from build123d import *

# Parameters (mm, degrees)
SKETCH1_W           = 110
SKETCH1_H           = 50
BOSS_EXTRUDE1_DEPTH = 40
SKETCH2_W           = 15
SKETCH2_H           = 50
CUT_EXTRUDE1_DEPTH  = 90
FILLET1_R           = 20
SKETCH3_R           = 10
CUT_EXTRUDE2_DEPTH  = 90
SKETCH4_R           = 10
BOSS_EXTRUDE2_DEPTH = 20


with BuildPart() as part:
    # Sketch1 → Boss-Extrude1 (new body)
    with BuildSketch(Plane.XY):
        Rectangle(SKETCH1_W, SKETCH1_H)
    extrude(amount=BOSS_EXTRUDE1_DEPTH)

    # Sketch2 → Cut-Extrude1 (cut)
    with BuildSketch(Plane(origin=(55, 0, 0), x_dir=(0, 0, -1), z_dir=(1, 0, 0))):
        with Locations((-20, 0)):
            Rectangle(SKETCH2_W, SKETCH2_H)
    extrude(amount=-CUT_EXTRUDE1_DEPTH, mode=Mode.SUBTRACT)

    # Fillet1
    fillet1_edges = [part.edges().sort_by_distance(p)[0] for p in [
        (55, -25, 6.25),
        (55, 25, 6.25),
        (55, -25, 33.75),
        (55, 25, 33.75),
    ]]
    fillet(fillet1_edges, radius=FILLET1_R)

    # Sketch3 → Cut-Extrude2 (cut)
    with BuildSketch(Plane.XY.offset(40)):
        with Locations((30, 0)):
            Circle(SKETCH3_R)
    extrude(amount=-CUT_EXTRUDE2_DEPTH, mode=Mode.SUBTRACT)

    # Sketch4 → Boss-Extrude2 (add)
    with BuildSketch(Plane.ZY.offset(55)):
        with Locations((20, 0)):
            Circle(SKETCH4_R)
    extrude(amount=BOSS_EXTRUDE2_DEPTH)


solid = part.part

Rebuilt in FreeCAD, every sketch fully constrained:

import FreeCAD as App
import Part
import Sketcher

V = App.Vector


def edges_at(feature, points):
    """Names of the edges that pass closest to the given points."""
    edges = feature.Shape.Edges
    near = lambda p: min(range(len(edges)), key=lambda i: edges[i].distToShape(Part.Vertex(*p))[0])
    return sorted({f"Edge{near(p) + 1}" for p in points})

doc = App.newDocument("Part")
params = doc.addObject("Spreadsheet::Sheet", "Params")
for row, (alias, value) in enumerate([
    ("sketch1_width", "110 mm"),
    ("sketch1_height", "50 mm"),
    ("pad1_length", "40 mm"),
    ("sketch2_width", "50 mm"),
    ("sketch2_height", "15 mm"),
    ("pocket1_length", "90 mm"),
    ("fillet_radius", "20 mm"),
    ("sketch3_diameter", "20 mm"),
    ("pocket2_length", "90 mm"),
    ("sketch4_diameter", "20 mm"),
    ("pad2_length", "20 mm"),
], start=1):
    params.set(f"A{row}", alias)
    params.set(f"B{row}", "=" + value)
    params.setAlias(f"B{row}", alias)

body = doc.addObject("PartDesign::Body", "Body")

# Sketch on XY plane
sketch1 = body.newObject("Sketcher::SketchObject", "Sketch")
sketch1.AttachmentSupport = (doc.getObject("XY_Plane"), [""])
sketch1.MapMode = "FlatFace"
sketch1.addGeometry(Part.LineSegment(V(-55, 25, 0), V(-55, -25, 0)), False)
sketch1.addGeometry(Part.LineSegment(V(-55, -25, 0), V(55, -25, 0)), False)
sketch1.addGeometry(Part.LineSegment(V(55, -25, 0), V(55, 25, 0)), False)
sketch1.addGeometry(Part.LineSegment(V(55, 25, 0), V(-55, 25, 0)), False)
sketch1.addConstraint(Sketcher.Constraint("Coincident", 0, 2, 1, 1))
sketch1.addConstraint(Sketcher.Constraint("Coincident", 1, 2, 2, 1))
sketch1.addConstraint(Sketcher.Constraint("Coincident", 2, 2, 3, 1))
sketch1.addConstraint(Sketcher.Constraint("Coincident", 3, 2, 0, 1))
sketch1.addConstraint(Sketcher.Constraint("Vertical", 0))
sketch1.addConstraint(Sketcher.Constraint("Horizontal", 1))
sketch1.addConstraint(Sketcher.Constraint("Vertical", 2))
sketch1.addConstraint(Sketcher.Constraint("Horizontal", 3))
sketch1.addConstraint(Sketcher.Constraint("Symmetric", 0, 2, 2, 2, -1, 1))
sketch1.addConstraint(Sketcher.Constraint("DistanceX", 1, 1, 1, 2, 110.0))
sketch1.addConstraint(Sketcher.Constraint("DistanceY", 0, 2, 0, 1, 50.0))
sketch1.setExpression("Constraints[9]", "Params.sketch1_width")
sketch1.setExpression("Constraints[10]", "Params.sketch1_height")
pad1 = body.newObject("PartDesign::Pad", "Pad")
pad1.Profile = sketch1
pad1.setExpression("Length", "Params.pad1_length")

# Sketch on YZ plane
sketch2 = body.newObject("Sketcher::SketchObject", "Sketch001")
sketch2.AttachmentSupport = (doc.getObject("YZ_Plane"), [""])
sketch2.MapMode = "FlatFace"
sketch2.AttachmentOffset = App.Placement(V(0, 0, 55), App.Rotation())
sketch2.addGeometry(Part.LineSegment(V(25, 27.5, 0), V(-25, 27.5, 0)), False)
sketch2.addGeometry(Part.LineSegment(V(-25, 27.5, 0), V(-25, 12.5, 0)), False)
sketch2.addGeometry(Part.LineSegment(V(-25, 12.5, 0), V(25, 12.5, 0)), False)
sketch2.addGeometry(Part.LineSegment(V(25, 12.5, 0), V(25, 27.5, 0)), False)
sketch2.addConstraint(Sketcher.Constraint("Coincident", 0, 2, 1, 1))
sketch2.addConstraint(Sketcher.Constraint("Coincident", 1, 2, 2, 1))
sketch2.addConstraint(Sketcher.Constraint("Coincident", 2, 2, 3, 1))
sketch2.addConstraint(Sketcher.Constraint("Coincident", 3, 2, 0, 1))
sketch2.addConstraint(Sketcher.Constraint("Horizontal", 0))
sketch2.addConstraint(Sketcher.Constraint("Vertical", 1))
sketch2.addConstraint(Sketcher.Constraint("Horizontal", 2))
sketch2.addConstraint(Sketcher.Constraint("Vertical", 3))
sketch2.addConstraint(Sketcher.Constraint("DistanceX", 0, 2, 0, 1, 50.0))
sketch2.addConstraint(Sketcher.Constraint("DistanceY", 1, 2, 1, 1, 15.0))
sketch2.addConstraint(Sketcher.Constraint("DistanceX", 0, 2, -1, 1, 25.0))
sketch2.addConstraint(Sketcher.Constraint("DistanceY", -1, 1, 0, 2, 27.5))
sketch2.setExpression("Constraints[8]", "Params.sketch2_width")
sketch2.setExpression("Constraints[9]", "Params.sketch2_height")
pocket1 = body.newObject("PartDesign::Pocket", "Pocket")
pocket1.Profile = sketch2
pocket1.setExpression("Length", "Params.pocket1_length")
doc.recompute()

fillet = body.newObject("PartDesign::Fillet", "Fillet")
fillet.Base = (pocket1, edges_at(pocket1, [
    (55, -25, 6.25),
    (55, 25, 6.25),
    (55, -25, 33.75),
    (55, 25, 33.75),
]))
fillet.setExpression("Radius", "Params.fillet_radius")

# Sketch on XY plane
sketch3 = body.newObject("Sketcher::SketchObject", "Sketch002")
sketch3.AttachmentSupport = (doc.getObject("XY_Plane"), [""])
sketch3.MapMode = "FlatFace"
sketch3.AttachmentOffset = App.Placement(V(0, 0, 40), App.Rotation())
sketch3.addGeometry(Part.Circle(V(30, 0, 0), V(0, 0, 1), 10), False)
sketch3.addConstraint(Sketcher.Constraint("PointOnObject", 0, 3, -1))
sketch3.addConstraint(Sketcher.Constraint("Diameter", 0, 20.0))
sketch3.addConstraint(Sketcher.Constraint("DistanceX", -1, 1, 0, 3, 30.0))
sketch3.setExpression("Constraints[1]", "Params.sketch3_diameter")
pocket2 = body.newObject("PartDesign::Pocket", "Pocket001")
pocket2.Profile = sketch3
pocket2.setExpression("Length", "Params.pocket2_length")

# Sketch on YZ plane
sketch4 = body.newObject("Sketcher::SketchObject", "Sketch003")
sketch4.AttachmentSupport = (doc.getObject("YZ_Plane"), [""])
sketch4.MapMode = "FlatFace"
sketch4.AttachmentOffset = App.Placement(V(0, 0, -55), App.Rotation())
sketch4.addGeometry(Part.Circle(V(0, 20, 0), V(0, 0, 1), 10), False)
sketch4.addConstraint(Sketcher.Constraint("PointOnObject", 0, 3, -2))
sketch4.addConstraint(Sketcher.Constraint("Diameter", 0, 20.0))
sketch4.addConstraint(Sketcher.Constraint("DistanceY", -1, 1, 0, 3, 20.0))
sketch4.setExpression("Constraints[1]", "Params.sketch4_diameter")
pad2 = body.newObject("PartDesign::Pad", "Pad001")
pad2.Profile = sketch4
pad2.setExpression("Length", "Params.pad2_length")
pad2.Reversed = True

doc.recompute()
